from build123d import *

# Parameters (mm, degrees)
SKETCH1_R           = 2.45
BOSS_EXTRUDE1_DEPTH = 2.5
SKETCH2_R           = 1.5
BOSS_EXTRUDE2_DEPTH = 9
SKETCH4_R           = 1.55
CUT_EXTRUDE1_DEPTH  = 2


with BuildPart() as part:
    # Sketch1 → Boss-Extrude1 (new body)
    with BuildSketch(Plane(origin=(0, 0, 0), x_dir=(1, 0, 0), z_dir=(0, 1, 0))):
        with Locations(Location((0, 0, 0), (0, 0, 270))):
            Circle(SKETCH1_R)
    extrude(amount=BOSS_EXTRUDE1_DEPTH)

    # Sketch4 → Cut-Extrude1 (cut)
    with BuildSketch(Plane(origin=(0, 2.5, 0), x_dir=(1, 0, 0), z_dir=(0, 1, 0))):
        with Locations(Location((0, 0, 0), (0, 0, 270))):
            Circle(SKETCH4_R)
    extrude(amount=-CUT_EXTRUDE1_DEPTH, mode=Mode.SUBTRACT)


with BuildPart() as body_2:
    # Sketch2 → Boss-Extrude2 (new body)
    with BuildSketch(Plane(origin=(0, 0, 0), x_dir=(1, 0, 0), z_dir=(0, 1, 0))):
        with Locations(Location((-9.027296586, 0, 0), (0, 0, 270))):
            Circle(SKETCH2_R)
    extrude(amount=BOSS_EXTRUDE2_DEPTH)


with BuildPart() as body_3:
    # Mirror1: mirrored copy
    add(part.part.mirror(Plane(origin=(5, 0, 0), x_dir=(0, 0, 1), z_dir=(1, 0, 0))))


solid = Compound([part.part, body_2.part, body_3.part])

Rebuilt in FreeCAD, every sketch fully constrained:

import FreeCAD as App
import Part
import Sketcher
from FreeCAD import Vector

doc = App.newDocument("Part")
body = doc.addObject("PartDesign::Body", "Body")

sketch1 = doc.addObject("Sketcher::SketchObject", "Sketch")
body.addObject(sketch1)
sketch1.AttachmentSupport = (doc.XZ_Plane, [""])
sketch1.MapMode = "FlatFace"
sketch1.addGeometry(Part.Circle(Vector(0, 0, 0), Vector(0, 0, 1), 2.45), False)
sketch1.addConstraint([
    Sketcher.Constraint("Coincident", 0, 3, -1, 1),
    Sketcher.Constraint("Diameter", 0, 4.9),
])
pad1 = doc.addObject("PartDesign::Pad", "Pad")
body.addObject(pad1)
pad1.Profile = sketch1
pad1.Length = 2.5
pad1.Reversed = True

sketch2 = doc.addObject("Sketcher::SketchObject", "Sketch001")
body.addObject(sketch2)
sketch2.AttachmentSupport = (doc.XZ_Plane, [""])
sketch2.MapMode = "FlatFace"
sketch2.AttachmentOffset = App.Placement(Vector(0, 0, -2.5), App.Rotation())
sketch2.addGeometry(Part.Circle(Vector(0, 0, 0), Vector(0, 0, 1), 1.55), False)
sketch2.addConstraint([
    Sketcher.Constraint("Coincident", 0, 3, -1, 1),
    Sketcher.Constraint("Diameter", 0, 3.1),
])
pocket1 = doc.addObject("PartDesign::Pocket", "Pocket")
body.addObject(pocket1)
pocket1.Profile = sketch2
pocket1.Length = 2
pocket1.Reversed = True
body2 = doc.addObject("PartDesign::Body", "Body001")

sketch3 = doc.addObject("Sketcher::SketchObject", "Sketch002")
body2.addObject(sketch3)
sketch3.AttachmentSupport = (doc.getObject("XZ_Plane001"), [""])
sketch3.MapMode = "FlatFace"
sketch3.addGeometry(Part.Circle(Vector(-9.027297, 0, 0), Vector(0, 0, 1), 1.5), False)
sketch3.addConstraint([
    Sketcher.Constraint("PointOnObject", 0, 3, -1),
    Sketcher.Constraint("Diameter", 0, 3.0),
    Sketcher.Constraint("DistanceX", 0, 3, -1, 1, 9.027297),
])
pad2 = doc.addObject("PartDesign::Pad", "Pad001")
body2.addObject(pad2)
pad2.Profile = sketch3
pad2.Length = 9
pad2.Reversed = True
body3 = doc.addObject("PartDesign::Body", "Body002")
doc.recompute()

mirroring = doc.addObject("Part::Mirroring", "Mirroring")
mirroring.Source = body
mirroring.Base = Vector(5, 0, 0)
mirroring.Normal = Vector(1, 0, 0)
body3.BaseFeature = mirroring
doc.recompute()
mirroring.Visibility = False

doc.recompute()
